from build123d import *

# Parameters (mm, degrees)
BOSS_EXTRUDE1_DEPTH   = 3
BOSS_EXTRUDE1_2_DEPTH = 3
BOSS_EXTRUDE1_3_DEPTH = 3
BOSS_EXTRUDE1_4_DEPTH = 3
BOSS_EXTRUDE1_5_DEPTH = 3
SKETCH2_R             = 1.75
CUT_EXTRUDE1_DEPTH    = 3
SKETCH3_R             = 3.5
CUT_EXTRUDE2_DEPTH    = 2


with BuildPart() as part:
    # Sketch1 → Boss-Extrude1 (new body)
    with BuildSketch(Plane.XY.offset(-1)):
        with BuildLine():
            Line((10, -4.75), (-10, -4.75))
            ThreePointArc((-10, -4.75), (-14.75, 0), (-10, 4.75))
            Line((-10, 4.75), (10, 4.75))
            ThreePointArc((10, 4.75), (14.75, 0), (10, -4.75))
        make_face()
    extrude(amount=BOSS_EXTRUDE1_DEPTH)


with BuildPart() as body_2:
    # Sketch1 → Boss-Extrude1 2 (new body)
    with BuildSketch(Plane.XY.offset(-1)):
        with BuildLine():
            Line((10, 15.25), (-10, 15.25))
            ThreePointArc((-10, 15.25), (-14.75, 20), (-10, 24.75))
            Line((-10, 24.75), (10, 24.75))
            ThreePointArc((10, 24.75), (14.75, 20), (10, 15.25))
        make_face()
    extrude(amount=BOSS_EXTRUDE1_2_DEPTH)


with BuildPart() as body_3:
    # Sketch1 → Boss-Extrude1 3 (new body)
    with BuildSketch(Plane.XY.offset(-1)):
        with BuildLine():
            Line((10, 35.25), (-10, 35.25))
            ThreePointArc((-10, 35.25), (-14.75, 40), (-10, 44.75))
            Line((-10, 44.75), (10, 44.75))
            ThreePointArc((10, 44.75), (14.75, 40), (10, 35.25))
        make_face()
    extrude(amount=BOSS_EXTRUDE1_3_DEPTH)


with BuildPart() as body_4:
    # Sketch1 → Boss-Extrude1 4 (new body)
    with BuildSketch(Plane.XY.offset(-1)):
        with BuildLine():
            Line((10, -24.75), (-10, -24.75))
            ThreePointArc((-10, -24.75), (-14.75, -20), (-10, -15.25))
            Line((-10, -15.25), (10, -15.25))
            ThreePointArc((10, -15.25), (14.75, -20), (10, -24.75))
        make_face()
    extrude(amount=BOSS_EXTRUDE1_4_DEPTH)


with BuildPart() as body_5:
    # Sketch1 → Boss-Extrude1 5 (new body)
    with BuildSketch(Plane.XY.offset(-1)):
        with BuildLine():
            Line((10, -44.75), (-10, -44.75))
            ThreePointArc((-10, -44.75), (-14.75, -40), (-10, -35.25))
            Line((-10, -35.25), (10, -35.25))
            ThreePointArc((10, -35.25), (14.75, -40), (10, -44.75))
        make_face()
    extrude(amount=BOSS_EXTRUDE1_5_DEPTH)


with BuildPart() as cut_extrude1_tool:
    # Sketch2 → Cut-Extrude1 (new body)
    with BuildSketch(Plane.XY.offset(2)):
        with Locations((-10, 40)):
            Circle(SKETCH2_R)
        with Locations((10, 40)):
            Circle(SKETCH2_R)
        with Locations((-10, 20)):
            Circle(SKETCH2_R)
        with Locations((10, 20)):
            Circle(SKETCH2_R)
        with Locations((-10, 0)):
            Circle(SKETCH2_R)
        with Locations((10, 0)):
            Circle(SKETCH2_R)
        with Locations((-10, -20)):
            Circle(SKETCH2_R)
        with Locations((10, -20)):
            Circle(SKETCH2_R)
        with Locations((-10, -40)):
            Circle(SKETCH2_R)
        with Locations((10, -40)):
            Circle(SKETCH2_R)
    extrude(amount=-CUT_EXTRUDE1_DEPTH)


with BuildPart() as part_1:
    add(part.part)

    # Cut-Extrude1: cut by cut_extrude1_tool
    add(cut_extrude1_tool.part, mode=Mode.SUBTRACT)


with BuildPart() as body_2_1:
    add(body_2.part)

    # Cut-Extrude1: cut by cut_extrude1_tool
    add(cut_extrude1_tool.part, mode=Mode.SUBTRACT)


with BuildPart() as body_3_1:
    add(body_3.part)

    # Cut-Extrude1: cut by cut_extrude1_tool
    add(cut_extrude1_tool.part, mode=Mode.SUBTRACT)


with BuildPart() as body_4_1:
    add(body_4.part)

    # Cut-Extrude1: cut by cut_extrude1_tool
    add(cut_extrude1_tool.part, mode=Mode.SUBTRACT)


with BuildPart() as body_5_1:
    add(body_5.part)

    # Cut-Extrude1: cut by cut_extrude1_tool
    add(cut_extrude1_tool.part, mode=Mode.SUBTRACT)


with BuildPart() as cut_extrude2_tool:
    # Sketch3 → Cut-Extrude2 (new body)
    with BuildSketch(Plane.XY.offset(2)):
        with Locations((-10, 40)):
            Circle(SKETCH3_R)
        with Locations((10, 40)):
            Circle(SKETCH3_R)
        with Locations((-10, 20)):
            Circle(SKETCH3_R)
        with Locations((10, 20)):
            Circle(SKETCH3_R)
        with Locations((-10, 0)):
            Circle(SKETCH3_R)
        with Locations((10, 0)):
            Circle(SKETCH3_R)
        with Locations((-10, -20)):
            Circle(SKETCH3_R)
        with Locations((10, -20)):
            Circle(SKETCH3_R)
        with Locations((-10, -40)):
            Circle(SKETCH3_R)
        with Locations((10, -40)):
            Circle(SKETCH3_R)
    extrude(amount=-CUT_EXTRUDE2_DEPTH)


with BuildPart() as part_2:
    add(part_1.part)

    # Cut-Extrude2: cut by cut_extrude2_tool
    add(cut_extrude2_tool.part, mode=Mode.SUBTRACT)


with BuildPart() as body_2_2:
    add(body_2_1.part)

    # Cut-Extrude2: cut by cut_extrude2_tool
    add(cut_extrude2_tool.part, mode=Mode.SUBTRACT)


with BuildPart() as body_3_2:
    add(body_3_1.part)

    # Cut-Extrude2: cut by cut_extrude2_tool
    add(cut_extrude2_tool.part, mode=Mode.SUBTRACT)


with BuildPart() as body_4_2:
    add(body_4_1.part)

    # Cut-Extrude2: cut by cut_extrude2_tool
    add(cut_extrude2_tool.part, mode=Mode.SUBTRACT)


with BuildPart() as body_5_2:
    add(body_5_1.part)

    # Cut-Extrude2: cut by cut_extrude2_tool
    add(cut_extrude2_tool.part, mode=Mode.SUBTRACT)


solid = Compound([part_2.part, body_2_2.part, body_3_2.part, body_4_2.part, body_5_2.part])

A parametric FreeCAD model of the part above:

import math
import FreeCAD as App
import Part
import Sketcher

V = App.Vector
Q = App.Units.Quantity

doc = App.newDocument("Part")
body = doc.addObject("PartDesign::Body", "Body")

# Sketch on XY plane
sketch1 = body.newObject("Sketcher::SketchObject", "Sketch")
sketch1.AttachmentSupport = (doc.getObject("XY_Plane"), [""])
sketch1.MapMode = "FlatFace"
sketch1.AttachmentOffset = App.Placement(V(0, 0, -1), App.Rotation())
sketch1.addGeometry(Part.LineSegment(V(-10, -4.8, 0), V(10, -4.8, 0)), False)
sketch1.addGeometry(Part.ArcOfCircle(Part.Circle(V(10, 0, 0), V(0, 0, 1), 4.8), math.radians(-90), math.radians(90)), False)
sketch1.addGeometry(Part.LineSegment(V(10, 4.8, 0), V(-10, 4.8, 0)), False)
sketch1.addGeometry(Part.ArcOfCircle(Part.Circle(V(-10, 0, 0), V(0, 0, 1), 4.8), math.radians(90), math.radians(270)), False)
sketch1.addConstraint(Sketcher.Constraint("Tangent", 0, 2, 1, 1))
sketch1.addConstraint(Sketcher.Constraint("Tangent", 1, 2, 2, 1))
sketch1.addConstraint(Sketcher.Constraint("Tangent", 2, 2, 3, 1))
sketch1.addConstraint(Sketcher.Constraint("Tangent", 3, 2, 0, 1))
sketch1.addConstraint(Sketcher.Constraint("Horizontal", 0))
sketch1.addConstraint(Sketcher.Constraint("Horizontal", 2))
sketch1.addConstraint(Sketcher.Constraint("Symmetric", 1, 3, 3, 3, -1, 1))
sketch1.addConstraint(Sketcher.Constraint("DistanceX", 0, 1, 0, 2, Q("20 mm")))
sketch1.addConstraint(Sketcher.Constraint("Radius", 1, Q("4.75 mm")))
pad1 = body.newObject("PartDesign::Pad", "Pad")
pad1.Profile = sketch1
pad1.Length = 3
body2 = doc.addObject("PartDesign::Body", "Body001")

# Sketch on XY plane
sketch2 = body2.newObject("Sketcher::SketchObject", "Sketch001")
sketch2.AttachmentSupport = (doc.getObject("XY_Plane001"), [""])
sketch2.MapMode = "FlatFace"
sketch2.AttachmentOffset = App.Placement(V(0, 0, -1), App.Rotation())
sketch2.addGeometry(Part.LineSegment(V(-10, 15.2, 0), V(10, 15.2, 0)), False)
sketch2.addGeometry(Part.ArcOfCircle(Part.Circle(V(10, 20, 0), V(0, 0, 1), 4.8), math.radians(-90), math.radians(90)), False)
sketch2.addGeometry(Part.LineSegment(V(10, 24.8, 0), V(-10, 24.8, 0)), False)
sketch2.addGeometry(Part.ArcOfCircle(Part.Circle(V(-10, 20, 0), V(0, 0, 1), 4.8), math.radians(90), math.radians(270)), False)
sketch2.addConstraint(Sketcher.Constraint("Tangent", 0, 2, 1, 1))
sketch2.addConstraint(Sketcher.Constraint("Tangent", 1, 2, 2, 1))
sketch2.addConstraint(Sketcher.Constraint("Tangent", 2, 2, 3, 1))
sketch2.addConstraint(Sketcher.Constraint("Tangent", 3, 2, 0, 1))
sketch2.addConstraint(Sketcher.Constraint("Horizontal", 0))
sketch2.addConstraint(Sketcher.Constraint("Horizontal", 2))
sketch2.addConstraint(Sketcher.Constraint("DistanceX", 0, 1, 0, 2, Q("20 mm")))
sketch2.addConstraint(Sketcher.Constraint("Radius", 1, Q("4.75 mm")))
sketch2.addConstraint(Sketcher.Constraint("DistanceX", -1, 1, 1, 3, Q("10 mm")))
sketch2.addConstraint(Sketcher.Constraint("DistanceY", -1, 1, 1, 3, Q("20 mm")))
pad2 = body2.newObject("PartDesign::Pad", "Pad001")
pad2.Profile = sketch2
pad2.Length = 3
body3 = doc.addObject("PartDesign::Body", "Body002")

# Sketch on XY plane
sketch3 = body3.newObject("Sketcher::SketchObject", "Sketch002")
sketch3.AttachmentSupport = (doc.getObject("XY_Plane002"), [""])
sketch3.MapMode = "FlatFace"
sketch3.AttachmentOffset = App.Placement(V(0, 0, -1), App.Rotation())
sketch3.addGeometry(Part.LineSegment(V(-10, 35.2, 0), V(10, 35.2, 0)), False)
sketch3.addGeometry(Part.ArcOfCircle(Part.Circle(V(10, 40, 0), V(0, 0, 1), 4.8), math.radians(-90), math.radians(90)), False)
sketch3.addGeometry(Part.LineSegment(V(10, 44.8, 0), V(-10, 44.8, 0)), False)
sketch3.addGeometry(Part.ArcOfCircle(Part.Circle(V(-10, 40, 0), V(0, 0, 1), 4.8), math.radians(90), math.radians(270)), False)
sketch3.addConstraint(Sketcher.Constraint("Tangent", 0, 2, 1, 1))
sketch3.addConstraint(Sketcher.Constraint("Tangent", 1, 2, 2, 1))
sketch3.addConstraint(Sketcher.Constraint("Tangent", 2, 2, 3, 1))
sketch3.addConstraint(Sketcher.Constraint("Tangent", 3, 2, 0, 1))
sketch3.addConstraint(Sketcher.Constraint("Horizontal", 0))
sketch3.addConstraint(Sketcher.Constraint("Horizontal", 2))
sketch3.addConstraint(Sketcher.Constraint("DistanceX", 0, 1, 0, 2, Q("20 mm")))
sketch3.addConstraint(Sketcher.Constraint("Radius", 1, Q("4.75 mm")))
sketch3.addConstraint(Sketcher.Constraint("DistanceX", -1, 1, 1, 3, Q("10 mm")))
sketch3.addConstraint(Sketcher.Constraint("DistanceY", -1, 1, 1, 3, Q("40 mm")))
pad3 = body3.newObject("PartDesign::Pad", "Pad002")
pad3.Profile = sketch3
pad3.Length = 3
body4 = doc.addObject("PartDesign::Body", "Body003")

# Sketch on XY plane
sketch4 = body4.newObject("Sketcher::SketchObject", "Sketch003")
sketch4.AttachmentSupport = (doc.getObject("XY_Plane003"), [""])
sketch4.MapMode = "FlatFace"
sketch4.AttachmentOffset = App.Placement(V(0, 0, -1), App.Rotation())
sketch4.addGeometry(Part.LineSegment(V(-10, -24.8, 0), V(10, -24.8, 0)), False)
sketch4.addGeometry(Part.ArcOfCircle(Part.Circle(V(10, -20, 0), V(0, 0, 1), 4.8), math.radians(-90), math.radians(90)), False)
sketch4.addGeometry(Part.LineSegment(V(10, -15.2, 0), V(-10, -15.2, 0)), False)
sketch4.addGeometry(Part.ArcOfCircle(Part.Circle(V(-10, -20, 0), V(0, 0, 1), 4.8), math.radians(90), math.radians(270)), False)
sketch4.addConstraint(Sketcher.Constraint("Tangent", 0, 2, 1, 1))
sketch4.addConstraint(Sketcher.Constraint("Tangent", 1, 2, 2, 1))
sketch4.addConstraint(Sketcher.Constraint("Tangent", 2, 2, 3, 1))
sketch4.addConstraint(Sketcher.Constraint("Tangent", 3, 2, 0, 1))
sketch4.addConstraint(Sketcher.Constraint("Horizontal", 0))
sketch4.addConstraint(Sketcher.Constraint("Horizontal", 2))
sketch4.addConstraint(Sketcher.Constraint("DistanceX", 0, 1, 0, 2, Q("20 mm")))
sketch4.addConstraint(Sketcher.Constraint("Radius", 1, Q("4.75 mm")))
sketch4.addConstraint(Sketcher.Constraint("DistanceX", -1, 1, 1, 3, Q("10 mm")))
sketch4.addConstraint(Sketcher.Constraint("DistanceY", 1, 3, -1, 1, Q("20 mm")))
pad4 = body4.newObject("PartDesign::Pad", "Pad003")
pad4.Profile = sketch4
pad4.Length = 3
body5 = doc.addObject("PartDesign::Body", "Body004")

# Sketch on XY plane
sketch5 = body5.newObject("Sketcher::SketchObject", "Sketch004")
sketch5.AttachmentSupport = (doc.getObject("XY_Plane004"), [""])
sketch5.MapMode = "FlatFace"
sketch5.AttachmentOffset = App.Placement(V(0, 0, -1), App.Rotation())
sketch5.addGeometry(Part.LineSegment(V(-10, -44.8, 0), V(10, -44.8, 0)), False)
sketch5.addGeometry(Part.ArcOfCircle(Part.Circle(V(10, -40, 0), V(0, 0, 1), 4.8), math.radians(-90), math.radians(90)), False)
sketch5.addGeometry(Part.LineSegment(V(10, -35.2, 0), V(-10, -35.2, 0)), False)
sketch5.addGeometry(Part.ArcOfCircle(Part.Circle(V(-10, -40, 0), V(0, 0, 1), 4.8), math.radians(90), math.radians(270)), False)
sketch5.addConstraint(Sketcher.Constraint("Tangent", 0, 2, 1, 1))
sketch5.addConstraint(Sketcher.Constraint("Tangent", 1, 2, 2, 1))
sketch5.addConstraint(Sketcher.Constraint("Tangent", 2, 2, 3, 1))
sketch5.addConstraint(Sketcher.Constraint("Tangent", 3, 2, 0, 1))
sketch5.addConstraint(Sketcher.Constraint("Horizontal", 0))
sketch5.addConstraint(Sketcher.Constraint("Horizontal", 2))
sketch5.addConstraint(Sketcher.Constraint("DistanceX", 0, 1, 0, 2, Q("20 mm")))
sketch5.addConstraint(Sketcher.Constraint("Radius", 1, Q("4.75 mm")))
sketch5.addConstraint(Sketcher.Constraint("DistanceX", -1, 1, 1, 3, Q("10 mm")))
sketch5.addConstraint(Sketcher.Constraint("DistanceY", 1, 3, -1, 1, Q("40 mm")))
pad5 = body5.newObject("PartDesign::Pad", "Pad004")
pad5.Profile = sketch5
pad5.Length = 3
body6 = doc.addObject("PartDesign::Body", "Body005")
body6.AllowCompound = True

# Sketch on XY plane
sketch6 = body6.newObject("Sketcher::SketchObject", "Sketch005")
sketch6.AttachmentSupport = (doc.getObject("XY_Plane005"), [""])
sketch6.MapMode = "FlatFace"
sketch6.AttachmentOffset = App.Placement(V(0, 0, 2), App.Rotation())
sketch6.addGeometry(Part.Circle(V(-10, 40, 0), V(0, 0, 1), 1.8), False)
sketch6.addGeometry(Part.Circle(V(10, 40, 0), V(0, 0, 1), 1.8), False)
sketch6.addGeometry(Part.Circle(V(-10, 20, 0), V(0, 0, 1), 1.8), False)
sketch6.addGeometry(Part.Circle(V(10, 20, 0), V(0, 0, 1), 1.8), False)
sketch6.addGeometry(Part.Circle(V(-10, 0, 0), V(0, 0, 1), 1.8), False)
sketch6.addGeometry(Part.Circle(V(10, 0, 0), V(0, 0, 1), 1.8), False)
sketch6.addGeometry(Part.Circle(V(-10, -20, 0), V(0, 0, 1), 1.8), False)
sketch6.addGeometry(Part.Circle(V(10, -20, 0), V(0, 0, 1), 1.8), False)
sketch6.addGeometry(Part.Circle(V(-10, -40, 0), V(0, 0, 1), 1.8), False)
sketch6.addGeometry(Part.Circle(V(10, -40, 0), V(0, 0, 1), 1.8), False)
sketch6.addConstraint(Sketcher.Constraint("Equal", 0, 1))
sketch6.addConstraint(Sketcher.Constraint("Equal", 1, 2))
sketch6.addConstraint(Sketcher.Constraint("Equal", 2, 3))
sketch6.addConstraint(Sketcher.Constraint("Equal", 3, 4))
sketch6.addConstraint(Sketcher.Constraint("Equal", 4, 5))
sketch6.addConstraint(Sketcher.Constraint("Equal", 5, 6))
sketch6.addConstraint(Sketcher.Constraint("Equal", 6, 7))
sketch6.addConstraint(Sketcher.Constraint("Equal", 7, 8))
sketch6.addConstraint(Sketcher.Constraint("Equal", 8, 9))
sketch6.addConstraint(Sketcher.Constraint("Symmetric", 4, 3, 5, 3, -1, 1))
sketch6.addConstraint(Sketcher.Constraint("Symmetric", 3, 3, 6, 3, -1, 1))
sketch6.addConstraint(Sketcher.Constraint("Symmetric", 2, 3, 7, 3, -1, 1))
sketch6.addConstraint(Sketcher.Constraint("Symmetric", 1, 3, 8, 3, -1, 1))
sketch6.addConstraint(Sketcher.Constraint("Symmetric", 0, 3, 9, 3, -1, 1))
sketch6.addConstraint(Sketcher.Constraint("Symmetric", 0, 3, 1, 3, -2))
sketch6.addConstraint(Sketcher.Constraint("Symmetric", 2, 3, 3, 3, -2))
sketch6.addConstraint(Sketcher.Constraint("PointOnObject", 4, 3, -1))
sketch6.addConstraint(Sketcher.Constraint("Vertical", 0, 3, 2, 3))
sketch6.addConstraint(Sketcher.Constraint("Vertical", 2, 3, 4, 3))
sketch6.addConstraint(Sketcher.Constraint("Diameter", 0, Q("3.5 mm")))
sketch6.addConstraint(Sketcher.Constraint("DistanceX", 0, 3, -1, 1, Q("10 mm")))
sketch6.addConstraint(Sketcher.Constraint("DistanceY", -1, 1, 0, 3, Q("40 mm")))
sketch6.addConstraint(Sketcher.Constraint("DistanceY", -1, 1, 2, 3, Q("20 mm")))
pad6 = body6.newObject("PartDesign::Pad", "Pad005")
pad6.Profile = sketch6
pad6.Length = 3
pad6.Reversed = True
doc.recompute()

body7 = doc.addObject("PartDesign::Body", "Body006")
body7.BaseFeature = body6
boolean = body.newObject("PartDesign::Boolean", "Boolean")
boolean.Type = "Cut"
boolean.addObjects([body7])
doc.recompute()

body8 = doc.addObject("PartDesign::Body", "Body007")
body8.BaseFeature = body6
boolean2 = body2.newObject("PartDesign::Boolean", "Boolean001")
boolean2.Type = "Cut"
boolean2.addObjects([body8])
doc.recompute()

body9 = doc.addObject("PartDesign::Body", "Body008")
body9.BaseFeature = body6
boolean3 = body3.newObject("PartDesign::Boolean", "Boolean002")
boolean3.Type = "Cut"
boolean3.addObjects([body9])
doc.recompute()

body10 = doc.addObject("PartDesign::Body", "Body009")
body10.BaseFeature = body6
boolean4 = body4.newObject("PartDesign::Boolean", "Boolean003")
boolean4.Type = "Cut"
boolean4.addObjects([body10])
doc.recompute()

boolean5 = body5.newObject("PartDesign::Boolean", "Boolean004")
boolean5.Type = "Cut"
boolean5.addObjects([body6])
body11 = doc.addObject("PartDesign::Body", "Body010")
body11.AllowCompound = True

# Sketch on XY plane
sketch7 = body11.newObject("Sketcher::SketchObject", "Sketch006")
sketch7.AttachmentSupport = (doc.getObject("XY_Plane010"), [""])
sketch7.MapMode = "FlatFace"
sketch7.AttachmentOffset = App.Placement(V(0, 0, 2), App.Rotation())
sketch7.addGeometry(Part.Circle(V(-10, 40, 0), V(0, 0, 1), 3.5), False)
sketch7.addGeometry(Part.Circle(V(10, 40, 0), V(0, 0, 1), 3.5), False)
sketch7.addGeometry(Part.Circle(V(-10, 20, 0), V(0, 0, 1), 3.5), False)
sketch7.addGeometry(Part.Circle(V(10, 20, 0), V(0, 0, 1), 3.5), False)
sketch7.addGeometry(Part.Circle(V(-10, 0, 0), V(0, 0, 1), 3.5), False)
sketch7.addGeometry(Part.Circle(V(10, 0, 0), V(0, 0, 1), 3.5), False)
sketch7.addGeometry(Part.Circle(V(-10, -20, 0), V(0, 0, 1), 3.5), False)
sketch7.addGeometry(Part.Circle(V(10, -20, 0), V(0, 0, 1), 3.5), False)
sketch7.addGeometry(Part.Circle(V(-10, -40, 0), V(0, 0, 1), 3.5), False)
sketch7.addGeometry(Part.Circle(V(10, -40, 0), V(0, 0, 1), 3.5), False)
sketch7.addConstraint(Sketcher.Constraint("Equal", 0, 1))
sketch7.addConstraint(Sketcher.Constraint("Equal", 1, 2))
sketch7.addConstraint(Sketcher.Constraint("Equal", 2, 3))
sketch7.addConstraint(Sketcher.Constraint("Equal", 3, 4))
sketch7.addConstraint(Sketcher.Constraint("Equal", 4, 5))
sketch7.addConstraint(Sketcher.Constraint("Equal", 5, 6))
sketch7.addConstraint(Sketcher.Constraint("Equal", 6, 7))
sketch7.addConstraint(Sketcher.Constraint("Equal", 7, 8))
sketch7.addConstraint(Sketcher.Constraint("Equal", 8, 9))
sketch7.addConstraint(Sketcher.Constraint("Symmetric", 4, 3, 5, 3, -1, 1))
sketch7.addConstraint(Sketcher.Constraint("Symmetric", 3, 3, 6, 3, -1, 1))
sketch7.addConstraint(Sketcher.Constraint("Symmetric", 2, 3, 7, 3, -1, 1))
sketch7.addConstraint(Sketcher.Constraint("Symmetric", 1, 3, 8, 3, -1, 1))
sketch7.addConstraint(Sketcher.Constraint("Symmetric", 0, 3, 9, 3, -1, 1))
sketch7.addConstraint(Sketcher.Constraint("Symmetric", 0, 3, 1, 3, -2))
sketch7.addConstraint(Sketcher.Constraint("Symmetric", 2, 3, 3, 3, -2))
sketch7.addConstraint(Sketcher.Constraint("PointOnObject", 4, 3, -1))
sketch7.addConstraint(Sketcher.Constraint("Vertical", 0, 3, 2, 3))
sketch7.addConstraint(Sketcher.Constraint("Vertical", 2, 3, 4, 3))
sketch7.addConstraint(Sketcher.Constraint("Diameter", 0, Q("7 mm")))
sketch7.addConstraint(Sketcher.Constraint("DistanceX", 0, 3, -1, 1, Q("10 mm")))
sketch7.addConstraint(Sketcher.Constraint("DistanceY", -1, 1, 0, 3, Q("40 mm")))
sketch7.addConstraint(Sketcher.Constraint("DistanceY", -1, 1, 2, 3, Q("20 mm")))
pad7 = body11.newObject("PartDesign::Pad", "Pad006")
pad7.Profile = sketch7
pad7.Length = 2
pad7.Reversed = True
doc.recompute()

body12 = doc.addObject("PartDesign::Body", "Body011")
body12.BaseFeature = body11
boolean6 = body.newObject("PartDesign::Boolean", "Boolean005")
boolean6.Type = "Cut"
boolean6.addObjects([body12])
doc.recompute()

body13 = doc.addObject("PartDesign::Body", "Body012")
body13.BaseFeature = body11
boolean7 = body2.newObject("PartDesign::Boolean", "Boolean006")
boolean7.Type = "Cut"
boolean7.addObjects([body13])
doc.recompute()

body14 = doc.addObject("PartDesign::Body", "Body013")
body14.BaseFeature = body11
boolean8 = body3.newObject("PartDesign::Boolean", "Boolean007")
boolean8.Type = "Cut"
boolean8.addObjects([body14])
doc.recompute()

body15 = doc.addObject("PartDesign::Body", "Body014")
body15.BaseFeature = body11
boolean9 = body4.newObject("PartDesign::Boolean", "Boolean008")
boolean9.Type = "Cut"
boolean9.addObjects([body15])
doc.recompute()

boolean10 = body5.newObject("PartDesign::Boolean", "Boolean009")
boolean10.Type = "Cut"
boolean10.addObjects([body11])

doc.recompute()
